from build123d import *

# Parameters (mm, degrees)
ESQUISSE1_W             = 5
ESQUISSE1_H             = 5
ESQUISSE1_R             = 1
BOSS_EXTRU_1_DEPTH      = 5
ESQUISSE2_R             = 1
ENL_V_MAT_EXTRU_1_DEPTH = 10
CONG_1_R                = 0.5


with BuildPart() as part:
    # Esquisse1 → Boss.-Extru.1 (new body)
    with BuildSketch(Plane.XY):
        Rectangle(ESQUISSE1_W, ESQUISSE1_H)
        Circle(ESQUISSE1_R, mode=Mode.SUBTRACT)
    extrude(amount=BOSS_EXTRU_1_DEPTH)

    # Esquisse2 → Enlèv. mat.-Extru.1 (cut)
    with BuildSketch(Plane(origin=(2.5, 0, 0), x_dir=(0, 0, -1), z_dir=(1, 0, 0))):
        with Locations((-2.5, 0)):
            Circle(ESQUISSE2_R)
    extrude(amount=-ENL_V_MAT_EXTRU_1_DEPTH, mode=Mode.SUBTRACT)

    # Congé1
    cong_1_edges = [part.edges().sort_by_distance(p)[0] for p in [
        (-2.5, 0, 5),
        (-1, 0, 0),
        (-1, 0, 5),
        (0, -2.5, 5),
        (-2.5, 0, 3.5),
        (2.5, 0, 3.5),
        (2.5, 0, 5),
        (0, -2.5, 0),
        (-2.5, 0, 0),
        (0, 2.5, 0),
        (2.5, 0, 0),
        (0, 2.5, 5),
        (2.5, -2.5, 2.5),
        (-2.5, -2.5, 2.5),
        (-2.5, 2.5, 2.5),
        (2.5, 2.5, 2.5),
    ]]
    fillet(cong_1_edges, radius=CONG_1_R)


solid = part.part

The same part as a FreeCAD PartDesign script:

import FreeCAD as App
import Part
import Sketcher

V = App.Vector


def edges_at(feature, points):
    """Names of the edges that pass closest to the given points."""
    edges = feature.Shape.Edges
    near = lambda p: min(range(len(edges)), key=lambda i: edges[i].distToShape(Part.Vertex(*p))[0])
    return sorted({f"Edge{near(p) + 1}" for p in points})


def add_polygon(sketch, points):
    """Adds a closed chain of lines whose ends are joined by coincident constraints."""
    first, n = sketch.GeometryCount, len(points)
    for a, b in zip(points, points[1:] + points[:1]):
        sketch.addGeometry(Part.LineSegment(App.Vector(*a, 0), App.Vector(*b, 0)), False)
    for i in range(n):
        sketch.addConstraint(Sketcher.Constraint("Coincident", first + i, 2, first + (i + 1) % n, 1))

doc = App.newDocument("Part")
body = doc.addObject("PartDesign::Body", "Body")

# Sketch on XY plane
sketch1 = doc.addObject("Sketcher::SketchObject", "Sketch")
body.addObject(sketch1)
sketch1.AttachmentSupport = (doc.XY_Plane, [""])
sketch1.MapMode = "FlatFace"
add_polygon(sketch1, [(-2.5, 2.5), (-2.5, -2.5), (2.5, -2.5), (2.5, 2.5)])  # lines 0-3
sketch1.addGeometry(Part.Circle(V(0, 0, 0), V(0, 0, 1), 1), False)  # 4
sketch1.addConstraint(Sketcher.Constraint("Vertical", 0))
sketch1.addConstraint(Sketcher.Constraint("Horizontal", 1))
sketch1.addConstraint(Sketcher.Constraint("Vertical", 2))
sketch1.addConstraint(Sketcher.Constraint("Horizontal", 3))
sketch1.addConstraint(Sketcher.Constraint("Coincident", 4, 3, -1, 1))
sketch1.addConstraint(Sketcher.Constraint("Symmetric", 0, 2, 2, 2, -1, 1))
sketch1.addConstraint(Sketcher.Constraint("Equal", 3, 0))
sketch1.addConstraint(Sketcher.Constraint("Diameter", 4, 2.0))
sketch1.addConstraint(Sketcher.Constraint("DistanceX", 1, 1, 1, 2, 5.0))
pad1 = doc.addObject("PartDesign::Pad", "Pad")
body.addObject(pad1)
pad1.Profile = sketch1
pad1.Length = 5

# Sketch on YZ plane
sketch2 = doc.addObject("Sketcher::SketchObject", "Sketch001")
body.addObject(sketch2)
sketch2.AttachmentSupport = (doc.YZ_Plane, [""])
sketch2.MapMode = "FlatFace"
sketch2.AttachmentOffset = App.Placement(V(0, 0, 2.5), App.Rotation())
sketch2.addGeometry(Part.Circle(V(0, 2.5, 0), V(0, 0, 1), 1), False)
sketch2.addConstraint(Sketcher.Constraint("PointOnObject", 0, 3, -2))
sketch2.addConstraint(Sketcher.Constraint("Diameter", 0, 2.0))
sketch2.addConstraint(Sketcher.Constraint("DistanceY", -1, 1, 0, 3, 2.5))
pocket1 = doc.addObject("PartDesign::Pocket", "Pocket")
body.addObject(pocket1)
pocket1.Profile = sketch2
pocket1.Length = 10
doc.recompute()

fillet = doc.addObject("PartDesign::Fillet", "Fillet")
body.addObject(fillet)
fillet.Base = (pocket1, edges_at(pocket1, [
    (-2.5, 0, 5),
    (-1, 0, 0),
    (-1, 0, 5),
    (0, -2.5, 5),
    (-2.5, 0, 3.5),
    (2.5, 0, 3.5),
    (2.5, 0, 5),
    (0, -2.5, 0),
    (-2.5, 0, 0),
    (0, 2.5, 0),
    (2.5, 0, 0),
    (0, 2.5, 5),
    (2.5, -2.5, 2.5),
    (-2.5, -2.5, 2.5),
    (-2.5, 2.5, 2.5),
    (2.5, 2.5, 2.5),
]))
fillet.Radius = 0.5

doc.recompute()
